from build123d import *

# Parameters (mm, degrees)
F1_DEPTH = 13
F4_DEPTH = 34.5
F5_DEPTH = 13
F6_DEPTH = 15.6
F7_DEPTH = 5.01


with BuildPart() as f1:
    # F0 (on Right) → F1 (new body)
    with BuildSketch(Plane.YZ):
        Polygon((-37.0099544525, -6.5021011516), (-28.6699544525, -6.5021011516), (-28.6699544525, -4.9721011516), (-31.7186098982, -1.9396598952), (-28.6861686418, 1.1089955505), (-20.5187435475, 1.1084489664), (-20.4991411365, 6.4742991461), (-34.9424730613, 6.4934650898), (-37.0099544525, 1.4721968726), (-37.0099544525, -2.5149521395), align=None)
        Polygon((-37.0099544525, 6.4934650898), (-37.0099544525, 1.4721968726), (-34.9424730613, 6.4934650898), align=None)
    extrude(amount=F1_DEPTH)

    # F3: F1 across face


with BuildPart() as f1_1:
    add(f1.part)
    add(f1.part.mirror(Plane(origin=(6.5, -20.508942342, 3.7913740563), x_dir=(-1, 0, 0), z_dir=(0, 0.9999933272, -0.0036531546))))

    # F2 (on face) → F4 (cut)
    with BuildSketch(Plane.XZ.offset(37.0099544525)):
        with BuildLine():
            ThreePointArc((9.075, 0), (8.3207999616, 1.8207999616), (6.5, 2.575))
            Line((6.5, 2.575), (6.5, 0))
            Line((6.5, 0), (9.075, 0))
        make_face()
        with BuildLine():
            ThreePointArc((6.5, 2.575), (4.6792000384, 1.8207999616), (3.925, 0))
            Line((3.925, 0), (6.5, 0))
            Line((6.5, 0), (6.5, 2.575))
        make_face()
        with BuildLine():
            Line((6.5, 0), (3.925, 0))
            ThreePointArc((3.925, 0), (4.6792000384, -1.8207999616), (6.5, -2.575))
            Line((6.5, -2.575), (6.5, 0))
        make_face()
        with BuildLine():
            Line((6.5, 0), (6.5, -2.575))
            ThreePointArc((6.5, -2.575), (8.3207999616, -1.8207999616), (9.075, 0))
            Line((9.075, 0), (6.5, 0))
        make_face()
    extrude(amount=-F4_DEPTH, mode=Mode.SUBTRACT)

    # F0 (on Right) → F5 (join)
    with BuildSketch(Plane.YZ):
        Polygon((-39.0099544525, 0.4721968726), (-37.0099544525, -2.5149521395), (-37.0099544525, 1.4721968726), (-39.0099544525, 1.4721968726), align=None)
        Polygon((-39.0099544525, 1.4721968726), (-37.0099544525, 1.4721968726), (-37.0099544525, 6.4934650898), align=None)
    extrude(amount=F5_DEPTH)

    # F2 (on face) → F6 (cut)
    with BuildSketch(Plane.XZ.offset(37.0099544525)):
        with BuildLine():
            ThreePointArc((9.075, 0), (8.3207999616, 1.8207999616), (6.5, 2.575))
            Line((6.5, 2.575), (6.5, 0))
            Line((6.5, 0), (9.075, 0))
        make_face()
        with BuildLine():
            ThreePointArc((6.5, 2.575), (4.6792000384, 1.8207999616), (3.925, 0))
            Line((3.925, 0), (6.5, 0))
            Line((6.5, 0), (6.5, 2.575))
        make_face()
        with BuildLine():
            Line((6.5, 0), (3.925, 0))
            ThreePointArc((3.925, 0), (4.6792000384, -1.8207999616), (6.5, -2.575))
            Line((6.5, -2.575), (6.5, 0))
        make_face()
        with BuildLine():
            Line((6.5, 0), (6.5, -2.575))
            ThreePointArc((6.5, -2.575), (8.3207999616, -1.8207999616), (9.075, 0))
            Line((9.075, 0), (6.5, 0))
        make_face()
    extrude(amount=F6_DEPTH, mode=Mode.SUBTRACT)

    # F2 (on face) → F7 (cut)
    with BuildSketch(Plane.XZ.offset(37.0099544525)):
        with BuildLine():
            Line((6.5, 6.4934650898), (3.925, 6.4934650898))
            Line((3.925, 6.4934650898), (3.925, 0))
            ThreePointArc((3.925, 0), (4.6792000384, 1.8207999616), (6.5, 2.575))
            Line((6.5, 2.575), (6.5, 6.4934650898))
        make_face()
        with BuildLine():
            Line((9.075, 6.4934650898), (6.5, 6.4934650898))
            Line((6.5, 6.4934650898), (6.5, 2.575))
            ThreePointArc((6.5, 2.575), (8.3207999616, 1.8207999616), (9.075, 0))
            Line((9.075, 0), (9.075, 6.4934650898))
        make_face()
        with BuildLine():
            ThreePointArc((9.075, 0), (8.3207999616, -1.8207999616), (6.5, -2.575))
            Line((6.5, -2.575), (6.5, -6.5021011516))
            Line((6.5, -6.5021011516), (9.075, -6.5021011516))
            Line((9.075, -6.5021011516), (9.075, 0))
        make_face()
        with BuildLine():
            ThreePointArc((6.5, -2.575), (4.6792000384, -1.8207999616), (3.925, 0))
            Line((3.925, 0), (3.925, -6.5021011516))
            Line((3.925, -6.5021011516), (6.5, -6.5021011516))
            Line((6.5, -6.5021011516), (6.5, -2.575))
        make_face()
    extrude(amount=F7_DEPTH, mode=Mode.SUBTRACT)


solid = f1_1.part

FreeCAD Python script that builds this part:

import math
import FreeCAD as App
import Part
import Sketcher

V = App.Vector
Q = App.Units.Quantity

doc = App.newDocument("Part")
body = doc.addObject("PartDesign::Body", "Body")

# Sketch on YZ plane
sketch1 = body.newObject("Sketcher::SketchObject", "Sketch")
sketch1.AttachmentSupport = (doc.getObject("YZ_Plane"), [""])
sketch1.MapMode = "FlatFace"
sketch1.addGeometry([
    Part.LineSegment(V(-37, -6.5, 0), V(-28.7, -6.5, 0)),  # 0
    Part.LineSegment(V(-28.7, -6.5, 0), V(-28.7, -5, 0)),  # 1
    Part.LineSegment(V(-28.7, -5, 0), V(-31.7, -1.9, 0)),  # 2
    Part.LineSegment(V(-31.7, -1.9, 0), V(-28.7, 1.1, 0)),  # 3
    Part.LineSegment(V(-28.7, 1.1, 0), V(-20.5, 1.1, 0)),  # 4
    Part.LineSegment(V(-20.5, 1.1, 0), V(-20.5, 6.5, 0)),  # 5
    Part.LineSegment(V(-20.5, 6.5, 0), V(-34.9, 6.5, 0)),  # 6
    Part.LineSegment(V(-34.9, 6.5, 0), V(-37, 6.5, 0)),  # 7
    Part.LineSegment(V(-37, 6.5, 0), V(-37, -6.5, 0)),  # 8
], False)
sketch1.addConstraint([
    Sketcher.Constraint("Coincident", 0, 2, 1, 1),
    Sketcher.Constraint("Coincident", 1, 2, 2, 1),
    Sketcher.Constraint("Coincident", 2, 2, 3, 1),
    Sketcher.Constraint("Coincident", 3, 2, 4, 1),
    Sketcher.Constraint("Coincident", 4, 2, 5, 1),
    Sketcher.Constraint("Coincident", 5, 2, 6, 1),
    Sketcher.Constraint("Coincident", 6, 2, 7, 1),
    Sketcher.Constraint("Coincident", 7, 2, 8, 1),
    Sketcher.Constraint("Coincident", 8, 2, 0, 1),
    Sketcher.Constraint("Horizontal", 0),
    Sketcher.Constraint("Vertical", 1),
    Sketcher.Constraint("Horizontal", 7),
    Sketcher.Constraint("Vertical", 8),
    Sketcher.Constraint("Perpendicular", 2, 3),
    Sketcher.Constraint("Equal", 2, 3),
    Sketcher.Constraint("Distance", 2, Q("4.3 mm")),
    Sketcher.Constraint("DistanceX", 0, 1, 0, 2, Q("8.34 mm")),
    Sketcher.Constraint("DistanceY", 1, 1, 1, 2, Q("1.53 mm")),
    Sketcher.Constraint("DistanceX", 7, 2, 7, 1, Q("2.067481 mm")),
    Sketcher.Constraint("DistanceY", 0, 2, -1, 1, Q("6.502101 mm")),
    Sketcher.Constraint("DistanceY", -1, 1, 5, 2, Q("6.474299 mm")),
    Sketcher.Constraint("DistanceY", 8, 2, 8, 1, Q("12.995566 mm")),
    Sketcher.Constraint("DistanceX", 2, 2, -1, 1, Q("31.71861 mm")),
    Sketcher.Constraint("DistanceY", 2, 2, -1, 1, Q("1.93966 mm")),
    Sketcher.Constraint("DistanceY", -1, 1, 4, 2, Q("1.108449 mm")),
    Sketcher.Constraint("DistanceX", 5, 2, -1, 1, Q("20.499141 mm")),
    Sketcher.Constraint("DistanceX", 1, 2, 4, 2, Q("8.151211 mm")),
])
pad1 = body.newObject("PartDesign::Pad", "Pad")
pad1.Profile = sketch1
pad1.Length = 13
body2 = doc.addObject("PartDesign::Body", "Body001")
doc.recompute()

body2.BaseFeature = body
doc.recompute()

mirroring = doc.addObject("Part::Mirroring", "Mirroring")
mirroring.Source = body
mirroring.Base = V(6.5, -20.508942, 3.791374)
mirroring.Normal = V(0, 0.999993327, -0.003653155)
body3 = doc.addObject("PartDesign::Body", "Body002")
body3.BaseFeature = mirroring
boolean = body2.newObject("PartDesign::Boolean", "Boolean")
boolean.Type = "Fuse"
boolean.addObjects([body3])
doc.recompute()

# Sketch on XZ plane
sketch2 = body2.newObject("Sketcher::SketchObject", "Sketch001")
sketch2.AttachmentSupport = (doc.getObject("XZ_Plane001"), [""])
sketch2.MapMode = "FlatFace"
sketch2.AttachmentOffset = App.Placement(V(0, 0, 37.009954), App.Rotation())
sketch2.addGeometry([
    Part.ArcOfCircle(Part.Circle(V(6.5, 0, 0), V(0, 0, 1), 2.6), math.radians(0), math.radians(90)),
    Part.ArcOfCircle(Part.Circle(V(6.5, 0, 0), V(0, 0, 1), 2.6), math.radians(90), math.radians(180)),
    Part.ArcOfCircle(Part.Circle(V(6.5, 0, 0), V(0, 0, 1), 2.6), math.radians(180), math.radians(270)),
    Part.ArcOfCircle(Part.Circle(V(6.5, 0, 0), V(0, 0, 1), 2.6), math.radians(-90), math.radians(0)),
], False)
sketch2.addConstraint([
    Sketcher.Constraint("Tangent", 0, 2, 1, 1),
    Sketcher.Constraint("Tangent", 1, 2, 2, 1),
    Sketcher.Constraint("Tangent", 2, 2, 3, 1),
    Sketcher.Constraint("Tangent", 3, 2, 0, 1),
    Sketcher.Constraint("Equal", 0, 1),
    Sketcher.Constraint("Symmetric", 0, 2, 2, 2, -1),
    Sketcher.Constraint("PointOnObject", 1, 2, -1),
    Sketcher.Constraint("PointOnObject", 3, 2, -1),
    Sketcher.Constraint("Vertical", 3, 3, 0, 2),
    Sketcher.Constraint("Radius", 0, Q("2.575 mm")),
    Sketcher.Constraint("DistanceX", -1, 1, 0, 3, Q("6.5 mm")),
])
pocket1 = body2.newObject("PartDesign::Pocket", "Pocket")
pocket1.Profile = sketch2
pocket1.Length = 34.5

# Sketch on YZ plane
sketch3 = body2.newObject("Sketcher::SketchObject", "Sketch002")
sketch3.AttachmentSupport = (doc.getObject("YZ_Plane001"), [""])
sketch3.MapMode = "FlatFace"
sketch3.addGeometry([
    Part.LineSegment(V(-39, 0.5, 0), V(-37, -2.5, 0)),
    Part.LineSegment(V(-37, -2.5, 0), V(-37, 6.5, 0)),
    Part.LineSegment(V(-37, 6.5, 0), V(-39, 1.5, 0)),
    Part.LineSegment(V(-39, 1.5, 0), V(-39, 0.5, 0)),
], False)
sketch3.addConstraint([
    Sketcher.Constraint("Coincident", 0, 2, 1, 1),
    Sketcher.Constraint("Coincident", 1, 2, 2, 1),
    Sketcher.Constraint("Coincident", 2, 2, 3, 1),
    Sketcher.Constraint("Coincident", 3, 2, 0, 1),
    Sketcher.Constraint("Vertical", 1),
    Sketcher.Constraint("Vertical", 3),
    Sketcher.Constraint("DistanceY", 3, 2, 3, 1, Q("1 mm")),
    Sketcher.Constraint("DistanceX", 2, 2, 0, 2, Q("2 mm")),
    Sketcher.Constraint("DistanceY", 1, 1, 1, 2, Q("9.008417 mm")),
    Sketcher.Constraint("DistanceY", 0, 2, 2, 2, Q("3.987149 mm")),
    Sketcher.Constraint("DistanceX", 0, 2, -1, 1, Q("37.009954 mm")),
    Sketcher.Constraint("DistanceY", 0, 2, -1, 1, Q("2.514952 mm")),
])
pad2 = body2.newObject("PartDesign::Pad", "Pad001")
pad2.Profile = sketch3
pad2.Length = 13

# Sketch on XZ plane
sketch4 = body2.newObject("Sketcher::SketchObject", "Sketch003")
sketch4.AttachmentSupport = (doc.getObject("XZ_Plane001"), [""])
sketch4.MapMode = "FlatFace"
sketch4.AttachmentOffset = App.Placement(V(0, 0, 37.009954), App.Rotation())
sketch4.addGeometry([
    Part.ArcOfCircle(Part.Circle(V(6.5, 0, 0), V(0, 0, 1), 2.6), math.radians(0), math.radians(90)),
    Part.ArcOfCircle(Part.Circle(V(6.5, 0, 0), V(0, 0, 1), 2.6), math.radians(90), math.radians(180)),
    Part.ArcOfCircle(Part.Circle(V(6.5, 0, 0), V(0, 0, 1), 2.6), math.radians(180), math.radians(270)),
    Part.ArcOfCircle(Part.Circle(V(6.5, 0, 0), V(0, 0, 1), 2.6), math.radians(-90), math.radians(0)),
], False)
sketch4.addConstraint([
    Sketcher.Constraint("Tangent", 0, 2, 1, 1),
    Sketcher.Constraint("Tangent", 1, 2, 2, 1),
    Sketcher.Constraint("Tangent", 2, 2, 3, 1),
    Sketcher.Constraint("Tangent", 3, 2, 0, 1),
    Sketcher.Constraint("Equal", 0, 1),
    Sketcher.Constraint("Symmetric", 0, 2, 2, 2, -1),
    Sketcher.Constraint("PointOnObject", 1, 2, -1),
    Sketcher.Constraint("PointOnObject", 3, 2, -1),
    Sketcher.Constraint("Vertical", 3, 3, 0, 2),
    Sketcher.Constraint("Radius", 0, Q("2.575 mm")),
    Sketcher.Constraint("DistanceX", -1, 1, 0, 3, Q("6.5 mm")),
])
pocket2 = body2.newObject("PartDesign::Pocket", "Pocket001")
pocket2.Profile = sketch4
pocket2.Length = 15.6
pocket2.Reversed = True

# Sketch on XZ plane
sketch5 = body2.newObject("Sketcher::SketchObject", "Sketch004")
sketch5.AttachmentSupport = (doc.getObject("XZ_Plane001"), [""])
sketch5.MapMode = "FlatFace"
sketch5.AttachmentOffset = App.Placement(V(0, 0, 37.009954), App.Rotation())
sketch5.addGeometry([
    Part.LineSegment(V(3.9, 6.5, 0), V(3.9, 0, 0)),  # 0
    Part.ArcOfCircle(Part.Circle(V(6.5, 0, 0), V(0, 0, 1), 2.6), math.radians(90), math.radians(180)),  # 1
    Part.ArcOfCircle(Part.Circle(V(6.5, 0, 0), V(0, 0, 1), 2.6), math.radians(0), math.radians(90)),  # 2
    Part.LineSegment(V(9.1, 0, 0), V(9.1, 6.5, 0)),  # 3
    Part.LineSegment(V(9.1, 6.5, 0), V(3.9, 6.5, 0)),  # 4
    Part.ArcOfCircle(Part.Circle(V(6.5, 0, 0), V(0, 0, 1), 2.6), math.radians(-90), math.radians(0)),  # 5
    Part.ArcOfCircle(Part.Circle(V(6.5, 0, 0), V(0, 0, 1), 2.6), math.radians(180), math.radians(270)),  # 6
    Part.LineSegment(V(3.9, 0, 0), V(3.9, -6.5, 0)),  # 7
    Part.LineSegment(V(3.9, -6.5, 0), V(9.1, -6.5, 0)),  # 8
    Part.LineSegment(V(9.1, -6.5, 0), V(9.1, 0, 0)),  # 9
], False)
sketch5.addConstraint([
    Sketcher.Constraint("Tangent", 0, 2, 1, 2),
    Sketcher.Constraint("Tangent", 1, 1, 2, 2),
    Sketcher.Constraint("Tangent", 2, 1, 3, 1),
    Sketcher.Constraint("Coincident", 3, 2, 4, 1),
    Sketcher.Constraint("Coincident", 4, 2, 0, 1),
    Sketcher.Constraint("Tangent", 5, 1, 6, 2),
    Sketcher.Constraint("Tangent", 6, 1, 7, 1),
    Sketcher.Constraint("Coincident", 7, 2, 8, 1),
    Sketcher.Constraint("Coincident", 8, 2, 9, 1),
    Sketcher.Constraint("Tangent", 9, 2, 5, 2),
    Sketcher.Constraint("Vertical", 0),
    Sketcher.Constraint("Vertical", 3),
    Sketcher.Constraint("Horizontal", 4),
    Sketcher.Constraint("Vertical", 7),
    Sketcher.Constraint("Horizontal", 8),
    Sketcher.Constraint("Vertical", 9),
    Sketcher.Constraint("Coincident", 5, 3, 1, 3),
    Sketcher.Constraint("Coincident", 6, 1, 0, 2),
    Sketcher.Constraint("Equal", 1, 2),
    Sketcher.Constraint("Symmetric", 1, 1, 5, 1, -1),
    Sketcher.Constraint("Vertical", 6, 3, 1, 1),
    Sketcher.Constraint("Radius", 1, Q("2.575 mm")),
    Sketcher.Constraint("DistanceX", -1, 1, 1, 3, Q("6.5 mm")),
    Sketcher.Constraint("DistanceY", 7, 2, 7, 1, Q("6.502101 mm")),
    Sketcher.Constraint("DistanceY", 0, 2, 0, 1, Q("6.493465 mm")),
])
pocket3 = body2.newObject("PartDesign::Pocket", "Pocket002")
pocket3.Profile = sketch5
pocket3.Length = 5.01
pocket3.Reversed = True
mirroring.Visibility = False

doc.recompute()
